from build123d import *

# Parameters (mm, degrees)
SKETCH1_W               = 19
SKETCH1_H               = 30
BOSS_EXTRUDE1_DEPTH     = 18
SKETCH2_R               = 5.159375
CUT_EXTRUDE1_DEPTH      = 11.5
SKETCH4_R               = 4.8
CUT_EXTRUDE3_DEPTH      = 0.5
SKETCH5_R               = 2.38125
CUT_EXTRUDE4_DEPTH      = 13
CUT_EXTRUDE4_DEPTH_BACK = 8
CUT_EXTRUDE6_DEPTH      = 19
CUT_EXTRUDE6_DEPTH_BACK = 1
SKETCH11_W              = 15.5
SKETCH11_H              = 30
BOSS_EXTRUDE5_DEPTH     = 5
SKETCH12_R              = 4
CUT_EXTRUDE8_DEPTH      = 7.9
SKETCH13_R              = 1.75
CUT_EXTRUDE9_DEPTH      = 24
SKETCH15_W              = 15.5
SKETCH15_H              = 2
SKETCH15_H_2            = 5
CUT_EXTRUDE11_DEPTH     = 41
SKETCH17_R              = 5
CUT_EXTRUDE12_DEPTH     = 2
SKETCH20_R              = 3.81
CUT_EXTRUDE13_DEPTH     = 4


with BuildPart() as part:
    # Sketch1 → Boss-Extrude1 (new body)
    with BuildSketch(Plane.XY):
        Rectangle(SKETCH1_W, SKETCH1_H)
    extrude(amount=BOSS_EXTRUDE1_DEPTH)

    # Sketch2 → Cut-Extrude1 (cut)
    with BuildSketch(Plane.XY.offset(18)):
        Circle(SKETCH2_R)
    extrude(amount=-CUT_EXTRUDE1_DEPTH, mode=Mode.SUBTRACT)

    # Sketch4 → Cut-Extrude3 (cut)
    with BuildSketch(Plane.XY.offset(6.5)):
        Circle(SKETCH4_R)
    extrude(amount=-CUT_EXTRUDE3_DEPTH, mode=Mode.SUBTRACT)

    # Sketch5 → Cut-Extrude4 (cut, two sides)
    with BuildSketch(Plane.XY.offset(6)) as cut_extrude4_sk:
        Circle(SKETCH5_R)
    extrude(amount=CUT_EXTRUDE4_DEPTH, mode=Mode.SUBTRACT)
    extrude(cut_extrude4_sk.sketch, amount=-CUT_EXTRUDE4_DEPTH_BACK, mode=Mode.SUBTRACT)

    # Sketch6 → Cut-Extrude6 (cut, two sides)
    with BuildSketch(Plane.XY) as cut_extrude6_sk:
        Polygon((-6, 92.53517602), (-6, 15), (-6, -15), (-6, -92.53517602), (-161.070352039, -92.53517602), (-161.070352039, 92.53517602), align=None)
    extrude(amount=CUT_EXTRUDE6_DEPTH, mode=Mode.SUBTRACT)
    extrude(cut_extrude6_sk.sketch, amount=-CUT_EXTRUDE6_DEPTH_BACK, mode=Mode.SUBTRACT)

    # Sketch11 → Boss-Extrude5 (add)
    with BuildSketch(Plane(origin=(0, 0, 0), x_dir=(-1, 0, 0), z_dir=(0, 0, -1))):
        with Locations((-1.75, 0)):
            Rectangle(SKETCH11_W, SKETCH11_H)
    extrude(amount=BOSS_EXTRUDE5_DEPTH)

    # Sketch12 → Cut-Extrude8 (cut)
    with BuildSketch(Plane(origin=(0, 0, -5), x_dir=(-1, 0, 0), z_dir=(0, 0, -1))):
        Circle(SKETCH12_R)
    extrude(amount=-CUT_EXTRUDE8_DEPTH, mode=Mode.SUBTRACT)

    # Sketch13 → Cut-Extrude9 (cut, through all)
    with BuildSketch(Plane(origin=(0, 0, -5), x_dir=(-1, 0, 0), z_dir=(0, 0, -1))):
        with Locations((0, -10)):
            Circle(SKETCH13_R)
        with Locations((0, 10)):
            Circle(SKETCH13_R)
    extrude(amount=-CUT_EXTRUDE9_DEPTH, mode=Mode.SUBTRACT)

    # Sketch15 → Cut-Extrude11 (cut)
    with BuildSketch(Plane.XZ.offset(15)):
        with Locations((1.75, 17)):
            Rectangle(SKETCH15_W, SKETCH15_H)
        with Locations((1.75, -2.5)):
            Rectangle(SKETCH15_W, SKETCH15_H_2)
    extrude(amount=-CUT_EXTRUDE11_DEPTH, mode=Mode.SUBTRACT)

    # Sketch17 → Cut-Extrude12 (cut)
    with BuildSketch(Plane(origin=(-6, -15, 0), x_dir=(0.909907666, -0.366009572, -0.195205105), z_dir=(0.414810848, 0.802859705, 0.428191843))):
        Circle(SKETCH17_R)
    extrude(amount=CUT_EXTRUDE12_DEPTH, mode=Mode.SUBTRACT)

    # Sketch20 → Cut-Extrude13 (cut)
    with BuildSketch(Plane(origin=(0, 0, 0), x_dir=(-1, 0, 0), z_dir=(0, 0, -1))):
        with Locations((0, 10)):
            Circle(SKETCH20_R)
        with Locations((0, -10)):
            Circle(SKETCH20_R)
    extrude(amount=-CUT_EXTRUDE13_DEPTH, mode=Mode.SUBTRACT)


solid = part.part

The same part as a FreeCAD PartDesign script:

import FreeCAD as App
import Part
import Sketcher

doc = App.newDocument("Part")
body = doc.addObject("PartDesign::Body", "Body")

sketch1 = body.newObject("Sketcher::SketchObject", "Sketch")
sketch1.AttachmentSupport = (doc.getObject("XY_Plane"), [""])
sketch1.MapMode = "FlatFace"
sketch1.addGeometry(Part.LineSegment(App.Vector(-9.5, 15, 0), App.Vector(-9.5, -15, 0)), False)
sketch1.addGeometry(Part.LineSegment(App.Vector(-9.5, -15, 0), App.Vector(9.5, -15, 0)), False)
sketch1.addGeometry(Part.LineSegment(App.Vector(9.5, -15, 0), App.Vector(9.5, 15, 0)), False)
sketch1.addGeometry(Part.LineSegment(App.Vector(9.5, 15, 0), App.Vector(-9.5, 15, 0)), False)
sketch1.addConstraint(Sketcher.Constraint("Coincident", 0, 2, 1, 1))
sketch1.addConstraint(Sketcher.Constraint("Coincident", 1, 2, 2, 1))
sketch1.addConstraint(Sketcher.Constraint("Coincident", 2, 2, 3, 1))
sketch1.addConstraint(Sketcher.Constraint("Coincident", 3, 2, 0, 1))
sketch1.addConstraint(Sketcher.Constraint("Vertical", 0))
sketch1.addConstraint(Sketcher.Constraint("Horizontal", 1))
sketch1.addConstraint(Sketcher.Constraint("Vertical", 2))
sketch1.addConstraint(Sketcher.Constraint("Horizontal", 3))
sketch1.addConstraint(Sketcher.Constraint("Symmetric", 0, 2, 2, 2, -1, 1))
sketch1.addConstraint(Sketcher.Constraint("DistanceX", 1, 1, 1, 2, 19.0))
sketch1.addConstraint(Sketcher.Constraint("DistanceY", 0, 2, 0, 1, 30.0))
pad1 = body.newObject("PartDesign::Pad", "Pad")
pad1.Profile = sketch1
pad1.Length = 18

sketch2 = body.newObject("Sketcher::SketchObject", "Sketch001")
sketch2.AttachmentSupport = (doc.getObject("XY_Plane"), [""])
sketch2.MapMode = "FlatFace"
sketch2.AttachmentOffset = App.Placement(App.Vector(0, 0, 18), App.Rotation())
sketch2.addGeometry(Part.Circle(App.Vector(0, 0, 0), App.Vector(0, 0, 1), 5.159375), False)
sketch2.addConstraint(Sketcher.Constraint("Coincident", 0, 3, -1, 1))
sketch2.addConstraint(Sketcher.Constraint("Diameter", 0, 10.31875))
pocket1 = body.newObject("PartDesign::Pocket", "Pocket")
pocket1.Profile = sketch2
pocket1.Length = 11.5

sketch3 = body.newObject("Sketcher::SketchObject", "Sketch002")
sketch3.AttachmentSupport = (doc.getObject("XY_Plane"), [""])
sketch3.MapMode = "FlatFace"
sketch3.AttachmentOffset = App.Placement(App.Vector(0, 0, 6.5), App.Rotation())
sketch3.addGeometry(Part.Circle(App.Vector(0, 0, 0), App.Vector(0, 0, 1), 4.8), False)
sketch3.addConstraint(Sketcher.Constraint("Coincident", 0, 3, -1, 1))
sketch3.addConstraint(Sketcher.Constraint("Diameter", 0, 9.6))
pocket2 = body.newObject("PartDesign::Pocket", "Pocket001")
pocket2.Profile = sketch3
pocket2.Length = 0.5

sketch4 = body.newObject("Sketcher::SketchObject", "Sketch003")
sketch4.AttachmentSupport = (doc.getObject("XY_Plane"), [""])
sketch4.MapMode = "FlatFace"
sketch4.AttachmentOffset = App.Placement(App.Vector(0, 0, 6), App.Rotation())
sketch4.addGeometry(Part.Circle(App.Vector(0, 0, 0), App.Vector(0, 0, 1), 2.38125), False)
sketch4.addConstraint(Sketcher.Constraint("Coincident", 0, 3, -1, 1))
sketch4.addConstraint(Sketcher.Constraint("Diameter", 0, 4.7625))
pocket3 = body.newObject("PartDesign::Pocket", "Pocket002")
pocket3.Profile = sketch4
pocket3.Type = "ThroughAll"
pocket3.Midplane = True

sketch5 = body.newObject("Sketcher::SketchObject", "Sketch004")
sketch5.AttachmentSupport = (doc.getObject("XY_Plane"), [""])
sketch5.MapMode = "FlatFace"
sketch5.addGeometry(Part.LineSegment(App.Vector(-6, -92.535176, 0), App.Vector(-6, 92.535176, 0)), False)
sketch5.addGeometry(Part.LineSegment(App.Vector(-6, 92.535176, 0), App.Vector(-161.070352, 92.535176, 0)), False)
sketch5.addGeometry(Part.LineSegment(App.Vector(-161.070352, 92.535176, 0), App.Vector(-161.070352, -92.535176, 0)), False)
sketch5.addGeometry(Part.LineSegment(App.Vector(-161.070352, -92.535176, 0), App.Vector(-6, -92.535176, 0)), False)
sketch5.addConstraint(Sketcher.Constraint("Coincident", 0, 2, 1, 1))
sketch5.addConstraint(Sketcher.Constraint("Coincident", 1, 2, 2, 1))
sketch5.addConstraint(Sketcher.Constraint("Coincident", 2, 2, 3, 1))
sketch5.addConstraint(Sketcher.Constraint("Coincident", 3, 2, 0, 1))
sketch5.addConstraint(Sketcher.Constraint("Vertical", 0))
sketch5.addConstraint(Sketcher.Constraint("Horizontal", 1))
sketch5.addConstraint(Sketcher.Constraint("Vertical", 2))
sketch5.addConstraint(Sketcher.Constraint("Horizontal", 3))
sketch5.addConstraint(Sketcher.Constraint("DistanceX", 0, 2, -1, 1, 6.0))
sketch5.addConstraint(Sketcher.Constraint("DistanceX", 1, 2, 1, 1, 155.070352))
sketch5.addConstraint(Sketcher.Constraint("DistanceY", 0, 1, 0, 2, 185.070352))
sketch5.addConstraint(Sketcher.Constraint("DistanceY", -1, 1, 0, 2, 92.535176))
pocket4 = body.newObject("PartDesign::Pocket", "Pocket003")
pocket4.Profile = sketch5
pocket4.Type = "ThroughAll"
pocket4.Midplane = True

sketch6 = body.newObject("Sketcher::SketchObject", "Sketch005")
sketch6.AttachmentSupport = (doc.getObject("XY_Plane"), [""])
sketch6.MapMode = "FlatFace"
sketch6.addGeometry(Part.LineSegment(App.Vector(9.5, 15, 0), App.Vector(9.5, -15, 0)), False)
sketch6.addGeometry(Part.LineSegment(App.Vector(9.5, -15, 0), App.Vector(-6, -15, 0)), False)
sketch6.addGeometry(Part.LineSegment(App.Vector(-6, -15, 0), App.Vector(-6, 15, 0)), False)
sketch6.addGeometry(Part.LineSegment(App.Vector(-6, 15, 0), App.Vector(9.5, 15, 0)), False)
sketch6.addConstraint(Sketcher.Constraint("Coincident", 0, 2, 1, 1))
sketch6.addConstraint(Sketcher.Constraint("Coincident", 1, 2, 2, 1))
sketch6.addConstraint(Sketcher.Constraint("Coincident", 2, 2, 3, 1))
sketch6.addConstraint(Sketcher.Constraint("Coincident", 3, 2, 0, 1))
sketch6.addConstraint(Sketcher.Constraint("Vertical", 0))
sketch6.addConstraint(Sketcher.Constraint("Horizontal", 1))
sketch6.addConstraint(Sketcher.Constraint("Vertical", 2))
sketch6.addConstraint(Sketcher.Constraint("Horizontal", 3))
sketch6.addConstraint(Sketcher.Constraint("DistanceY", 0, 2, 0, 1, 30.0))
sketch6.addConstraint(Sketcher.Constraint("DistanceX", 1, 2, 1, 1, 15.5))
sketch6.addConstraint(Sketcher.Constraint("DistanceY", 0, 2, -1, 1, 15.0))
sketch6.addConstraint(Sketcher.Constraint("DistanceX", 1, 2, -1, 1, 6.0))
pad2 = body.newObject("PartDesign::Pad", "Pad001")
pad2.Profile = sketch6
pad2.Length = 5
pad2.Reversed = True

sketch7 = body.newObject("Sketcher::SketchObject", "Sketch006")
sketch7.AttachmentSupport = (doc.getObject("XY_Plane"), [""])
sketch7.MapMode = "FlatFace"
sketch7.AttachmentOffset = App.Placement(App.Vector(0, 0, -5), App.Rotation())
sketch7.addGeometry(Part.Circle(App.Vector(0, 0, 0), App.Vector(0, 0, 1), 4), False)
sketch7.addConstraint(Sketcher.Constraint("Coincident", 0, 3, -1, 1))
sketch7.addConstraint(Sketcher.Constraint("Diameter", 0, 8.0))
pocket5 = body.newObject("PartDesign::Pocket", "Pocket004")
pocket5.Profile = sketch7
pocket5.Length = 7.9
pocket5.Reversed = True

sketch8 = body.newObject("Sketcher::SketchObject", "Sketch007")
sketch8.AttachmentSupport = (doc.getObject("XY_Plane"), [""])
sketch8.MapMode = "FlatFace"
sketch8.AttachmentOffset = App.Placement(App.Vector(0, 0, -5), App.Rotation())
sketch8.addGeometry(Part.Circle(App.Vector(0, -10, 0), App.Vector(0, 0, 1), 1.75), False)
sketch8.addGeometry(Part.Circle(App.Vector(0, 10, 0), App.Vector(0, 0, 1), 1.75), False)
sketch8.addConstraint(Sketcher.Constraint("Equal", 0, 1))
sketch8.addConstraint(Sketcher.Constraint("Symmetric", 0, 3, 1, 3, -1, 1))
sketch8.addConstraint(Sketcher.Constraint("PointOnObject", 0, 3, -2))
sketch8.addConstraint(Sketcher.Constraint("Diameter", 0, 3.5))
sketch8.addConstraint(Sketcher.Constraint("DistanceY", 0, 3, -1, 1, 10.0))
pocket6 = body.newObject("PartDesign::Pocket", "Pocket005")
pocket6.Profile = sketch8
pocket6.Type = "ThroughAll"
pocket6.Reversed = True

sketch9 = body.newObject("Sketcher::SketchObject", "Sketch008")
sketch9.AttachmentSupport = (doc.getObject("XZ_Plane"), [""])
sketch9.MapMode = "FlatFace"
sketch9.AttachmentOffset = App.Placement(App.Vector(0, 0, 15), App.Rotation())
sketch9.addGeometry(Part.LineSegment(App.Vector(-6, 18, 0), App.Vector(-6, 16, 0)), False)
sketch9.addGeometry(Part.LineSegment(App.Vector(-6, 16, 0), App.Vector(9.5, 16, 0)), False)
sketch9.addGeometry(Part.LineSegment(App.Vector(9.5, 16, 0), App.Vector(9.5, 18, 0)), False)
sketch9.addGeometry(Part.LineSegment(App.Vector(9.5, 18, 0), App.Vector(-6, 18, 0)), False)
sketch9.addGeometry(Part.LineSegment(App.Vector(-6, 0, 0), App.Vector(-6, -5, 0)), False)
sketch9.addGeometry(Part.LineSegment(App.Vector(-6, -5, 0), App.Vector(9.5, -5, 0)), False)
sketch9.addGeometry(Part.LineSegment(App.Vector(9.5, -5, 0), App.Vector(9.5, 0, 0)), False)
sketch9.addGeometry(Part.LineSegment(App.Vector(9.5, 0, 0), App.Vector(-6, 0, 0)), False)
sketch9.addConstraint(Sketcher.Constraint("Coincident", 0, 2, 1, 1))
sketch9.addConstraint(Sketcher.Constraint("Coincident", 1, 2, 2, 1))
sketch9.addConstraint(Sketcher.Constraint("Coincident", 2, 2, 3, 1))
sketch9.addConstraint(Sketcher.Constraint("Coincident", 3, 2, 0, 1))
sketch9.addConstraint(Sketcher.Constraint("Coincident", 4, 2, 5, 1))
sketch9.addConstraint(Sketcher.Constraint("Coincident", 5, 2, 6, 1))
sketch9.addConstraint(Sketcher.Constraint("Coincident", 6, 2, 7, 1))
sketch9.addConstraint(Sketcher.Constraint("Coincident", 7, 2, 4, 1))
sketch9.addConstraint(Sketcher.Constraint("Vertical", 0))
sketch9.addConstraint(Sketcher.Constraint("Horizontal", 1))
sketch9.addConstraint(Sketcher.Constraint("Vertical", 2))
sketch9.addConstraint(Sketcher.Constraint("Horizontal", 3))
sketch9.addConstraint(Sketcher.Constraint("Vertical", 4))
sketch9.addConstraint(Sketcher.Constraint("Horizontal", 5))
sketch9.addConstraint(Sketcher.Constraint("Vertical", 6))
sketch9.addConstraint(Sketcher.Constraint("Horizontal", 7))
sketch9.addConstraint(Sketcher.Constraint("PointOnObject", 6, 2, -1))
sketch9.addConstraint(Sketcher.Constraint("Vertical", 3, 2, 4, 2))
sketch9.addConstraint(Sketcher.Constraint("Vertical", 2, 2, 5, 2))
sketch9.addConstraint(Sketcher.Constraint("DistanceY", 0, 2, 0, 1, 2.0))
sketch9.addConstraint(Sketcher.Constraint("DistanceY", 4, 2, 4, 1, 5.0))
sketch9.addConstraint(Sketcher.Constraint("DistanceX", 1, 1, 1, 2, 15.5))
sketch9.addConstraint(Sketcher.Constraint("DistanceX", 0, 2, -1, 1, 6.0))
sketch9.addConstraint(Sketcher.Constraint("DistanceY", -1, 1, 0, 2, 16.0))
pocket7 = body.newObject("PartDesign::Pocket", "Pocket006")
pocket7.Profile = sketch9
pocket7.Length = 41

sketch10 = body.newObject("Sketcher::SketchObject", "Sketch009")
sketch10.Placement = App.Placement(App.Vector(-6, -15, 0), App.Rotation(App.Vector(0.909907666, -0.366009572, -0.195205105), App.Vector(0, 0.470588236, -0.882352941), App.Vector(0.414810848, 0.802859705, 0.428191843), "ZXY"))
sketch10.addGeometry(Part.Circle(App.Vector(0, 0, 0), App.Vector(0, 0, 1), 5), False)
sketch10.addConstraint(Sketcher.Constraint("Coincident", 0, 3, -1, 1))
sketch10.addConstraint(Sketcher.Constraint("Diameter", 0, 10.0))
pocket8 = body.newObject("PartDesign::Pocket", "Pocket007")
pocket8.Profile = sketch10
pocket8.Length = 2
pocket8.Reversed = True

sketch11 = body.newObject("Sketcher::SketchObject", "Sketch010")
sketch11.AttachmentSupport = (doc.getObject("XY_Plane"), [""])
sketch11.MapMode = "FlatFace"
sketch11.addGeometry(Part.Circle(App.Vector(0, 10, 0), App.Vector(0, 0, 1), 3.81), False)
sketch11.addGeometry(Part.Circle(App.Vector(0, -10, 0), App.Vector(0, 0, 1), 3.81), False)
sketch11.addConstraint(Sketcher.Constraint("Equal", 0, 1))
sketch11.addConstraint(Sketcher.Constraint("Symmetric", 0, 3, 1, 3, -1, 1))
sketch11.addConstraint(Sketcher.Constraint("PointOnObject", 0, 3, -2))
sketch11.addConstraint(Sketcher.Constraint("Diameter", 0, 7.62))
sketch11.addConstraint(Sketcher.Constraint("DistanceY", -1, 1, 0, 3, 10.0))
pocket9 = body.newObject("PartDesign::Pocket", "Pocket008")
pocket9.Profile = sketch11
pocket9.Length = 4
pocket9.Reversed = True

doc.recompute()
